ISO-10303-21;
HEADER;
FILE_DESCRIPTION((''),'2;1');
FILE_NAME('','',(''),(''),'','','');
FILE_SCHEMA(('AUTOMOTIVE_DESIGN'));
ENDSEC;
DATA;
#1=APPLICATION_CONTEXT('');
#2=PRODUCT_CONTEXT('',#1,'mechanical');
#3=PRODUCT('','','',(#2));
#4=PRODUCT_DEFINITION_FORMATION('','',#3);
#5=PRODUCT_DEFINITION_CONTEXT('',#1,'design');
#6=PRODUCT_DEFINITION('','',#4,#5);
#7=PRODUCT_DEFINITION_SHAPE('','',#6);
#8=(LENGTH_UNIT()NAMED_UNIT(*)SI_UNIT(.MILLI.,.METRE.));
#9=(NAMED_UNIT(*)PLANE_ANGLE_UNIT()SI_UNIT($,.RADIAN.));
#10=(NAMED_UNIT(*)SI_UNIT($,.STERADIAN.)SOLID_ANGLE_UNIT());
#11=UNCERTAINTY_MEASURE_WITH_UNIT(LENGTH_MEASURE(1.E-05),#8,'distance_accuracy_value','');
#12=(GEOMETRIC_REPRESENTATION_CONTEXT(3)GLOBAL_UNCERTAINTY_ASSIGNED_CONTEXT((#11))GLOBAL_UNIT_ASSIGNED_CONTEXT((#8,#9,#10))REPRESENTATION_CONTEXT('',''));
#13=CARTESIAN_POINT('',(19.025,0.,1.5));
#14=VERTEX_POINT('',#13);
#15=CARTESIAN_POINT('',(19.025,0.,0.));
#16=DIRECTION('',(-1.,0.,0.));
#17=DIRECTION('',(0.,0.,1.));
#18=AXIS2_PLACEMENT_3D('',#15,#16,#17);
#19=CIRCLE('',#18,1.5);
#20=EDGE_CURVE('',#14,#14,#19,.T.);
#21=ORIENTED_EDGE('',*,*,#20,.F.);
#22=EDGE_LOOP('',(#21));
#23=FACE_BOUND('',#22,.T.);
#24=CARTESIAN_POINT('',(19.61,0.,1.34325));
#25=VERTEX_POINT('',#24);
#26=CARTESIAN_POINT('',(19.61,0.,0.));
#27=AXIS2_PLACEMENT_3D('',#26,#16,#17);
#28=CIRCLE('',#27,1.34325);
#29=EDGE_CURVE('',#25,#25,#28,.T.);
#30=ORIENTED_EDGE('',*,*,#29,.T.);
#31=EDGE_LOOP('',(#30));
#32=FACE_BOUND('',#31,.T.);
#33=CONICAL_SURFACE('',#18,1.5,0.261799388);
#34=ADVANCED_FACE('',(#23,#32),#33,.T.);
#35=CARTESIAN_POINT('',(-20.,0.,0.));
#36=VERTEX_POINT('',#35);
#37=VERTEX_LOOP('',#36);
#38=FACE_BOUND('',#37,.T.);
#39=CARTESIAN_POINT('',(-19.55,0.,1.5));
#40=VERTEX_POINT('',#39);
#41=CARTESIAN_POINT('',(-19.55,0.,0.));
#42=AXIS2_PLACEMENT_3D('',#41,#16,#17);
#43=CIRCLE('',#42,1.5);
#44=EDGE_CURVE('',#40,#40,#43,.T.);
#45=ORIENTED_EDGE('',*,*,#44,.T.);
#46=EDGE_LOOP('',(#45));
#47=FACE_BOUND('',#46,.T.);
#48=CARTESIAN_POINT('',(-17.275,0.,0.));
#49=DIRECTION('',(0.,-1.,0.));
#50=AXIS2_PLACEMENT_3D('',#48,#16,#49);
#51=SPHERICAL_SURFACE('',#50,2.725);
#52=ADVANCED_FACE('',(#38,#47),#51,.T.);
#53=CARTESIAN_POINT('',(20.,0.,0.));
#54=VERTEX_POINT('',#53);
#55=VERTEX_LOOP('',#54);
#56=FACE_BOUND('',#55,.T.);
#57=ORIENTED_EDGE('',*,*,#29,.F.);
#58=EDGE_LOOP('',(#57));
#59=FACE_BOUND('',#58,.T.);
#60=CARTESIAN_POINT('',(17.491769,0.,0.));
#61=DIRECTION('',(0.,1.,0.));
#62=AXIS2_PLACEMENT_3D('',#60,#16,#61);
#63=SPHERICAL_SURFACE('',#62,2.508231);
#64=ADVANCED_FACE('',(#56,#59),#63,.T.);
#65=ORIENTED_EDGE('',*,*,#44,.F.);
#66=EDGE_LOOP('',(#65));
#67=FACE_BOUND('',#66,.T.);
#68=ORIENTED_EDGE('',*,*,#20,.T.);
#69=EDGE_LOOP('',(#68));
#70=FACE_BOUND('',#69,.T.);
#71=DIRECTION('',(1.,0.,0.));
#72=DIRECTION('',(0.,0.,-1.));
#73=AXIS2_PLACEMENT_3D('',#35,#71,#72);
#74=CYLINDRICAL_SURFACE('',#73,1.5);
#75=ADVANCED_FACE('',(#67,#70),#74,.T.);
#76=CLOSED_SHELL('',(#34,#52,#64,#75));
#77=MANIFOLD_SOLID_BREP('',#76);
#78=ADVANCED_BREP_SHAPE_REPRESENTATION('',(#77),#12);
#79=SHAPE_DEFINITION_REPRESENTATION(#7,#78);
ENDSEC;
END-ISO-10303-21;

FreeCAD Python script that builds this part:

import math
import FreeCAD as App
import Part
import Sketcher

V = App.Vector
Q = App.Units.Quantity

doc = App.newDocument("Part")
body = doc.addObject("PartDesign::Body", "Body")

# Sketch on YZ plane
sketch1 = doc.addObject("Sketcher::SketchObject", "Sketch")
body.addObject(sketch1)
sketch1.AttachmentSupport = (doc.YZ_Plane, [""])
sketch1.MapMode = "FlatFace"
sketch1.addGeometry(Part.Circle(V(0, 0, 0), V(0, 0, 1), 1.5), False)
sketch1.addConstraint([
    Sketcher.Constraint("Coincident", 0, 3, -1, 1),
    Sketcher.Constraint("Diameter", 0, 3.0),
])
pad1 = doc.addObject("PartDesign::Pad", "Pad")
body.addObject(pad1)
pad1.Profile = sketch1
pad1.Type = "TwoLengths"
pad1.Length = 20
pad1.Length2 = 20

# Sketch on XY plane
sketch2 = doc.addObject("Sketcher::SketchObject", "Sketch001")
body.addObject(sketch2)
sketch2.AttachmentSupport = (doc.XY_Plane, [""])
sketch2.MapMode = "FlatFace"
sketch2.addGeometry([
    Part.LineSegment(V(19.025, 2, 0), V(19.025, 1.5, 0)),  # 0
    Part.LineSegment(V(19.025, 1.5, 0), V(19.61, 1.34325, 0)),  # 1
    Part.ArcOfCircle(Part.Circle(V(17.491769, 0, 0), V(0, 0, 1), 2.508231), math.radians(0), math.radians(32.380322)),  # 2
    Part.LineSegment(V(20, 0, 0), V(20.5, 0, 0)),  # 3
    Part.LineSegment(V(20.5, 0, 0), V(20.5, 2, 0)),  # 4
    Part.LineSegment(V(20.5, 2, 0), V(19.025, 2, 0)),  # 5
    Part.LineSegment(V(-19.55, 1.5, 0), V(-19.55, 2, 0)),  # 6
    Part.LineSegment(V(-19.55, 2, 0), V(-20.5, 2, 0)),  # 7
    Part.LineSegment(V(-20.5, 2, 0), V(-20.5, 0, 0)),  # 8
    Part.LineSegment(V(-20.5, 0, 0), V(-20, 0, 0)),  # 9
    Part.ArcOfCircle(Part.Circle(V(-17.275, 0, 0), V(0, 0, 1), 2.725), math.radians(146.601512), math.radians(180)),  # 10
], False)
sketch2.addConstraint([
    Sketcher.Constraint("Coincident", 0, 2, 1, 1),
    Sketcher.Constraint("Coincident", 1, 2, 2, 2),
    Sketcher.Constraint("Coincident", 2, 1, 3, 1),
    Sketcher.Constraint("Coincident", 3, 2, 4, 1),
    Sketcher.Constraint("Coincident", 4, 2, 5, 1),
    Sketcher.Constraint("Coincident", 5, 2, 0, 1),
    Sketcher.Constraint("Coincident", 6, 2, 7, 1),
    Sketcher.Constraint("Coincident", 7, 2, 8, 1),
    Sketcher.Constraint("Coincident", 8, 2, 9, 1),
    Sketcher.Constraint("Coincident", 9, 2, 10, 2),
    Sketcher.Constraint("Coincident", 10, 1, 6, 1),
    Sketcher.Constraint("Vertical", 0),
    Sketcher.Constraint("Horizontal", 3),
    Sketcher.Constraint("Vertical", 4),
    Sketcher.Constraint("Horizontal", 5),
    Sketcher.Constraint("Vertical", 6),
    Sketcher.Constraint("Horizontal", 7),
    Sketcher.Constraint("Vertical", 8),
    Sketcher.Constraint("Horizontal", 9),
    Sketcher.Constraint("Symmetric", 3, 2, 8, 2, -1, 1),
    Sketcher.Constraint("Symmetric", 2, 1, 9, 2, -2),
    Sketcher.Constraint("PointOnObject", 2, 3, -1),
    Sketcher.Constraint("PointOnObject", 10, 3, -1),
    Sketcher.Constraint("Horizontal", 5, 2, 6, 2),
    Sketcher.Constraint("Horizontal", 0, 2, 10, 1),
    Sketcher.Constraint("Equal", 9, 0),
    Sketcher.Constraint("DistanceY", 4, 1, 4, 2, 2.0),
    Sketcher.Constraint("Angle", 1, Q("-15 deg")),
    Sketcher.Constraint("DistanceX", 3, 1, 3, 2, 0.5),
    Sketcher.Constraint("DistanceX", -1, 1, 2, 1, 20.0),
    Sketcher.Constraint("Radius", 10, 2.725),
    Sketcher.Constraint("DistanceX", 10, 3, 0, 2, 36.3),
    Sketcher.Constraint("DistanceX", -1, 1, 1, 2, 19.61),
])
groove = doc.addObject("PartDesign::Groove", "Groove")
body.addObject(groove)
groove.Profile = sketch2
groove.ReferenceAxis = (sketch2, ["H_Axis"])
groove.Angle = 360

doc.recompute()
